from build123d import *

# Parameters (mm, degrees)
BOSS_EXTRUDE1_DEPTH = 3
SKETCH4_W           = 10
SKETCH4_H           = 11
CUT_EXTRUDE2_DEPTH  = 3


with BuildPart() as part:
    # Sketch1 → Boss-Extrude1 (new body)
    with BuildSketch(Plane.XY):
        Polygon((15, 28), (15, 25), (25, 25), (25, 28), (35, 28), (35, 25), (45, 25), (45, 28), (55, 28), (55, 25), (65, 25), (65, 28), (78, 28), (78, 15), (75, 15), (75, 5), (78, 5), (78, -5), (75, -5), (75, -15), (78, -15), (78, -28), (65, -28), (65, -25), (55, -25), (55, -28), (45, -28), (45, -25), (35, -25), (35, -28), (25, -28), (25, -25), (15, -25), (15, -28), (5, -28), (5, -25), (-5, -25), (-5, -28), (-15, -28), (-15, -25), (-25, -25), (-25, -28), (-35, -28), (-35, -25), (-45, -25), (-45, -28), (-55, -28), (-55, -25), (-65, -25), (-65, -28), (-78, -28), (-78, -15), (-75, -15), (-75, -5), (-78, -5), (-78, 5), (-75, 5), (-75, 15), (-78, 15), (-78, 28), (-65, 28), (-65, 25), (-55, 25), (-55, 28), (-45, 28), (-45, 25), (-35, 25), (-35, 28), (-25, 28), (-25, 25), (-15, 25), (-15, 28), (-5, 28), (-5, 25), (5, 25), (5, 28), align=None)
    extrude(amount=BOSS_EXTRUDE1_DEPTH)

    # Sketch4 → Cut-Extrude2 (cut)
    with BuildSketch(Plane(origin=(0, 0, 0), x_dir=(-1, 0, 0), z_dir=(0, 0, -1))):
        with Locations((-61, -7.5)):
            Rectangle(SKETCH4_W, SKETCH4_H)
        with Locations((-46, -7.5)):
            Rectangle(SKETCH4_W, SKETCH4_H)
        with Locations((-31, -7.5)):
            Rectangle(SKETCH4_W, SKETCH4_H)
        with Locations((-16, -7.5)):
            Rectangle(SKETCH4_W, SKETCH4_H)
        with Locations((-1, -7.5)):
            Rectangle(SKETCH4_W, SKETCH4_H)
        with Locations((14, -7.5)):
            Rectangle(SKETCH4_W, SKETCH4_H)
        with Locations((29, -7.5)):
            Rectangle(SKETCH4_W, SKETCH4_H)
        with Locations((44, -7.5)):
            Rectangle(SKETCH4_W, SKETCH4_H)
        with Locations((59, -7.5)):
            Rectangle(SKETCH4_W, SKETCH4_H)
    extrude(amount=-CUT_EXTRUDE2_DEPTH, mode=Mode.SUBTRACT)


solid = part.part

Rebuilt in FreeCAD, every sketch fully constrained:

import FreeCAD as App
import Part
import Sketcher
from FreeCAD import Vector
Q = App.Units.Quantity

doc = App.newDocument("Part")
params = doc.addObject("Spreadsheet::Sheet", "Params")
for row, (alias, value) in enumerate([
    ("sketch1_width", "10 mm"),
    ("sketch1_width2", "13 mm"),
    ("sketch1_width3", "3 mm"),
    ("pad1_length", "3 mm"),
    ("sketch2_width", "10 mm"),
    ("sketch2_height", "11 mm"),
    ("pocket1_length", "3 mm"),
], start=1):
    params.set(f"A{row}", alias)
    params.set(f"B{row}", "=" + value)
    params.setAlias(f"B{row}", alias)

body = doc.addObject("PartDesign::Body", "Body")

# Sketch on XY plane
sketch1 = body.newObject("Sketcher::SketchObject", "Sketch")
sketch1.AttachmentSupport = (doc.getObject("XY_Plane"), [""])
sketch1.MapMode = "FlatFace"
sketch1.addGeometry(Part.LineSegment(Vector(15, 25, 0), Vector(15, 28, 0)), False)
sketch1.addGeometry(Part.LineSegment(Vector(15, 28, 0), Vector(5, 28, 0)), False)
sketch1.addGeometry(Part.LineSegment(Vector(5, 28, 0), Vector(5, 25, 0)), False)
sketch1.addGeometry(Part.LineSegment(Vector(5, 25, 0), Vector(-5, 25, 0)), False)
sketch1.addGeometry(Part.LineSegment(Vector(-5, 25, 0), Vector(-5, 28, 0)), False)
sketch1.addGeometry(Part.LineSegment(Vector(-5, 28, 0), Vector(-15, 28, 0)), False)
sketch1.addGeometry(Part.LineSegment(Vector(-15, 28, 0), Vector(-15, 25, 0)), False)
sketch1.addGeometry(Part.LineSegment(Vector(-15, 25, 0), Vector(-25, 25, 0)), False)
sketch1.addGeometry(Part.LineSegment(Vector(-25, 25, 0), Vector(-25, 28, 0)), False)
sketch1.addGeometry(Part.LineSegment(Vector(-25, 28, 0), Vector(-35, 28, 0)), False)
sketch1.addGeometry(Part.LineSegment(Vector(-35, 28, 0), Vector(-35, 25, 0)), False)
sketch1.addGeometry(Part.LineSegment(Vector(-35, 25, 0), Vector(-45, 25, 0)), False)
sketch1.addGeometry(Part.LineSegment(Vector(-45, 25, 0), Vector(-45, 28, 0)), False)
sketch1.addGeometry(Part.LineSegment(Vector(-45, 28, 0), Vector(-55, 28, 0)), False)
sketch1.addGeometry(Part.LineSegment(Vector(-55, 28, 0), Vector(-55, 25, 0)), False)
sketch1.addGeometry(Part.LineSegment(Vector(-55, 25, 0), Vector(-65, 25, 0)), False)
sketch1.addGeometry(Part.LineSegment(Vector(-65, 25, 0), Vector(-65, 28, 0)), False)
sketch1.addGeometry(Part.LineSegment(Vector(-65, 28, 0), Vector(-78, 28, 0)), False)
sketch1.addGeometry(Part.LineSegment(Vector(-78, 28, 0), Vector(-78, 15, 0)), False)
sketch1.addGeometry(Part.LineSegment(Vector(-78, 15, 0), Vector(-75, 15, 0)), False)
sketch1.addGeometry(Part.LineSegment(Vector(-75, 15, 0), Vector(-75, 5, 0)), False)
sketch1.addGeometry(Part.LineSegment(Vector(-75, 5, 0), Vector(-78, 5, 0)), False)
sketch1.addGeometry(Part.LineSegment(Vector(-78, 5, 0), Vector(-78, -5, 0)), False)
sketch1.addGeometry(Part.LineSegment(Vector(-78, -5, 0), Vector(-75, -5, 0)), False)
sketch1.addGeometry(Part.LineSegment(Vector(-75, -5, 0), Vector(-75, -15, 0)), False)
sketch1.addGeometry(Part.LineSegment(Vector(-75, -15, 0), Vector(-78, -15, 0)), False)
sketch1.addGeometry(Part.LineSegment(Vector(-78, -15, 0), Vector(-78, -28, 0)), False)
sketch1.addGeometry(Part.LineSegment(Vector(-78, -28, 0), Vector(-65, -28, 0)), False)
sketch1.addGeometry(Part.LineSegment(Vector(-65, -28, 0), Vector(-65, -25, 0)), False)
sketch1.addGeometry(Part.LineSegment(Vector(-65, -25, 0), Vector(-55, -25, 0)), False)
sketch1.addGeometry(Part.LineSegment(Vector(-55, -25, 0), Vector(-55, -28, 0)), False)
sketch1.addGeometry(Part.LineSegment(Vector(-55, -28, 0), Vector(-45, -28, 0)), False)
sketch1.addGeometry(Part.LineSegment(Vector(-45, -28, 0), Vector(-45, -25, 0)), False)
sketch1.addGeometry(Part.LineSegment(Vector(-45, -25, 0), Vector(-35, -25, 0)), False)
sketch1.addGeometry(Part.LineSegment(Vector(-35, -25, 0), Vector(-35, -28, 0)), False)
sketch1.addGeometry(Part.LineSegment(Vector(-35, -28, 0), Vector(-25, -28, 0)), False)
sketch1.addGeometry(Part.LineSegment(Vector(-25, -28, 0), Vector(-25, -25, 0)), False)
sketch1.addGeometry(Part.LineSegment(Vector(-25, -25, 0), Vector(-15, -25, 0)), False)
sketch1.addGeometry(Part.LineSegment(Vector(-15, -25, 0), Vector(-15, -28, 0)), False)
sketch1.addGeometry(Part.LineSegment(Vector(-15, -28, 0), Vector(-5, -28, 0)), False)
sketch1.addGeometry(Part.LineSegment(Vector(-5, -28, 0), Vector(-5, -25, 0)), False)
sketch1.addGeometry(Part.LineSegment(Vector(-5, -25, 0), Vector(5, -25, 0)), False)
sketch1.addGeometry(Part.LineSegment(Vector(5, -25, 0), Vector(5, -28, 0)), False)
sketch1.addGeometry(Part.LineSegment(Vector(5, -28, 0), Vector(15, -28, 0)), False)
sketch1.addGeometry(Part.LineSegment(Vector(15, -28, 0), Vector(15, -25, 0)), False)
sketch1.addGeometry(Part.LineSegment(Vector(15, -25, 0), Vector(25, -25, 0)), False)
sketch1.addGeometry(Part.LineSegment(Vector(25, -25, 0), Vector(25, -28, 0)), False)
sketch1.addGeometry(Part.LineSegment(Vector(25, -28, 0), Vector(35, -28, 0)), False)
sketch1.addGeometry(Part.LineSegment(Vector(35, -28, 0), Vector(35, -25, 0)), False)
sketch1.addGeometry(Part.LineSegment(Vector(35, -25, 0), Vector(45, -25, 0)), False)
sketch1.addGeometry(Part.LineSegment(Vector(45, -25, 0), Vector(45, -28, 0)), False)
sketch1.addGeometry(Part.LineSegment(Vector(45, -28, 0), Vector(55, -28, 0)), False)
sketch1.addGeometry(Part.LineSegment(Vector(55, -28, 0), Vector(55, -25, 0)), False)
sketch1.addGeometry(Part.LineSegment(Vector(55, -25, 0), Vector(65, -25, 0)), False)
sketch1.addGeometry(Part.LineSegment(Vector(65, -25, 0), Vector(65, -28, 0)), False)
sketch1.addGeometry(Part.LineSegment(Vector(65, -28, 0), Vector(78, -28, 0)), False)
sketch1.addGeometry(Part.LineSegment(Vector(78, -28, 0), Vector(78, -15, 0)), False)
sketch1.addGeometry(Part.LineSegment(Vector(78, -15, 0), Vector(75, -15, 0)), False)
sketch1.addGeometry(Part.LineSegment(Vector(75, -15, 0), Vector(75, -5, 0)), False)
sketch1.addGeometry(Part.LineSegment(Vector(75, -5, 0), Vector(78, -5, 0)), False)
sketch1.addGeometry(Part.LineSegment(Vector(78, -5, 0), Vector(78, 5, 0)), False)
sketch1.addGeometry(Part.LineSegment(Vector(78, 5, 0), Vector(75, 5, 0)), False)
sketch1.addGeometry(Part.LineSegment(Vector(75, 5, 0), Vector(75, 15, 0)), False)
sketch1.addGeometry(Part.LineSegment(Vector(75, 15, 0), Vector(78, 15, 0)), False)
sketch1.addGeometry(Part.LineSegment(Vector(78, 15, 0), Vector(78, 28, 0)), False)
sketch1.addGeometry(Part.LineSegment(Vector(78, 28, 0), Vector(65, 28, 0)), False)
sketch1.addGeometry(Part.LineSegment(Vector(65, 28, 0), Vector(65, 25, 0)), False)
sketch1.addGeometry(Part.LineSegment(Vector(65, 25, 0), Vector(55, 25, 0)), False)
sketch1.addGeometry(Part.LineSegment(Vector(55, 25, 0), Vector(55, 28, 0)), False)
sketch1.addGeometry(Part.LineSegment(Vector(55, 28, 0), Vector(45, 28, 0)), False)
sketch1.addGeometry(Part.LineSegment(Vector(45, 28, 0), Vector(45, 25, 0)), False)
sketch1.addGeometry(Part.LineSegment(Vector(45, 25, 0), Vector(35, 25, 0)), False)
sketch1.addGeometry(Part.LineSegment(Vector(35, 25, 0), Vector(35, 28, 0)), False)
sketch1.addGeometry(Part.LineSegment(Vector(35, 28, 0), Vector(25, 28, 0)), False)
sketch1.addGeometry(Part.LineSegment(Vector(25, 28, 0), Vector(25, 25, 0)), False)
sketch1.addGeometry(Part.LineSegment(Vector(25, 25, 0), Vector(15, 25, 0)), False)
sketch1.addConstraint(Sketcher.Constraint("Coincident", 0, 2, 1, 1))
sketch1.addConstraint(Sketcher.Constraint("Coincident", 1, 2, 2, 1))
sketch1.addConstraint(Sketcher.Constraint("Coincident", 2, 2, 3, 1))
sketch1.addConstraint(Sketcher.Constraint("Coincident", 3, 2, 4, 1))
sketch1.addConstraint(Sketcher.Constraint("Coincident", 4, 2, 5, 1))
sketch1.addConstraint(Sketcher.Constraint("Coincident", 5, 2, 6, 1))
sketch1.addConstraint(Sketcher.Constraint("Coincident", 6, 2, 7, 1))
sketch1.addConstraint(Sketcher.Constraint("Coincident", 7, 2, 8, 1))
sketch1.addConstraint(Sketcher.Constraint("Coincident", 8, 2, 9, 1))
sketch1.addConstraint(Sketcher.Constraint("Coincident", 9, 2, 10, 1))
sketch1.addConstraint(Sketcher.Constraint("Coincident", 10, 2, 11, 1))
sketch1.addConstraint(Sketcher.Constraint("Coincident", 11, 2, 12, 1))
sketch1.addConstraint(Sketcher.Constraint("Coincident", 12, 2, 13, 1))
sketch1.addConstraint(Sketcher.Constraint("Coincident", 13, 2, 14, 1))
sketch1.addConstraint(Sketcher.Constraint("Coincident", 14, 2, 15, 1))
sketch1.addConstraint(Sketcher.Constraint("Coincident", 15, 2, 16, 1))
sketch1.addConstraint(Sketcher.Constraint("Coincident", 16, 2, 17, 1))
sketch1.addConstraint(Sketcher.Constraint("Coincident", 17, 2, 18, 1))
sketch1.addConstraint(Sketcher.Constraint("Coincident", 18, 2, 19, 1))
sketch1.addConstraint(Sketcher.Constraint("Coincident", 19, 2, 20, 1))
sketch1.addConstraint(Sketcher.Constraint("Coincident", 20, 2, 21, 1))
sketch1.addConstraint(Sketcher.Constraint("Coincident", 21, 2, 22, 1))
sketch1.addConstraint(Sketcher.Constraint("Coincident", 22, 2, 23, 1))
sketch1.addConstraint(Sketcher.Constraint("Coincident", 23, 2, 24, 1))
sketch1.addConstraint(Sketcher.Constraint("Coincident", 24, 2, 25, 1))
sketch1.addConstraint(Sketcher.Constraint("Coincident", 25, 2, 26, 1))
sketch1.addConstraint(Sketcher.Constraint("Coincident", 26, 2, 27, 1))
sketch1.addConstraint(Sketcher.Constraint("Coincident", 27, 2, 28, 1))
sketch1.addConstraint(Sketcher.Constraint("Coincident", 28, 2, 29, 1))
sketch1.addConstraint(Sketcher.Constraint("Coincident", 29, 2, 30, 1))
sketch1.addConstraint(Sketcher.Constraint("Coincident", 30, 2, 31, 1))
sketch1.addConstraint(Sketcher.Constraint("Coincident", 31, 2, 32, 1))
sketch1.addConstraint(Sketcher.Constraint("Coincident", 32, 2, 33, 1))
sketch1.addConstraint(Sketcher.Constraint("Coincident", 33, 2, 34, 1))
sketch1.addConstraint(Sketcher.Constraint("Coincident", 34, 2, 35, 1))
sketch1.addConstraint(Sketcher.Constraint("Coincident", 35, 2, 36, 1))
sketch1.addConstraint(Sketcher.Constraint("Coincident", 36, 2, 37, 1))
sketch1.addConstraint(Sketcher.Constraint("Coincident", 37, 2, 38, 1))
sketch1.addConstraint(Sketcher.Constraint("Coincident", 38, 2, 39, 1))
sketch1.addConstraint(Sketcher.Constraint("Coincident", 39, 2, 40, 1))
sketch1.addConstraint(Sketcher.Constraint("Coincident", 40, 2, 41, 1))
sketch1.addConstraint(Sketcher.Constraint("Coincident", 41, 2, 42, 1))
sketch1.addConstraint(Sketcher.Constraint("Coincident", 42, 2, 43, 1))
sketch1.addConstraint(Sketcher.Constraint("Coincident", 43, 2, 44, 1))
sketch1.addConstraint(Sketcher.Constraint("Coincident", 44, 2, 45, 1))
sketch1.addConstraint(Sketcher.Constraint("Coincident", 45, 2, 46, 1))
sketch1.addConstraint(Sketcher.Constraint("Coincident", 46, 2, 47, 1))
sketch1.addConstraint(Sketcher.Constraint("Coincident", 47, 2, 48, 1))
sketch1.addConstraint(Sketcher.Constraint("Coincident", 48, 2, 49, 1))
sketch1.addConstraint(Sketcher.Constraint("Coincident", 49, 2, 50, 1))
sketch1.addConstraint(Sketcher.Constraint("Coincident", 50, 2, 51, 1))
sketch1.addConstraint(Sketcher.Constraint("Coincident", 51, 2, 52, 1))
sketch1.addConstraint(Sketcher.Constraint("Coincident", 52, 2, 53, 1))
sketch1.addConstraint(Sketcher.Constraint("Coincident", 53, 2, 54, 1))
sketch1.addConstraint(Sketcher.Constraint("Coincident", 54, 2, 55, 1))
sketch1.addConstraint(Sketcher.Constraint("Coincident", 55, 2, 56, 1))
sketch1.addConstraint(Sketcher.Constraint("Coincident", 56, 2, 57, 1))
sketch1.addConstraint(Sketcher.Constraint("Coincident", 57, 2, 58, 1))
sketch1.addConstraint(Sketcher.Constraint("Coincident", 58, 2, 59, 1))
sketch1.addConstraint(Sketcher.Constraint("Coincident", 59, 2, 60, 1))
sketch1.addConstraint(Sketcher.Constraint("Coincident", 60, 2, 61, 1))
sketch1.addConstraint(Sketcher.Constraint("Coincident", 61, 2, 62, 1))
sketch1.addConstraint(Sketcher.Constraint("Coincident", 62, 2, 63, 1))
sketch1.addConstraint(Sketcher.Constraint("Coincident", 63, 2, 64, 1))
sketch1.addConstraint(Sketcher.Constraint("Coincident", 64, 2, 65, 1))
sketch1.addConstraint(Sketcher.Constraint("Coincident", 65, 2, 66, 1))
sketch1.addConstraint(Sketcher.Constraint("Coincident", 66, 2, 67, 1))
sketch1.addConstraint(Sketcher.Constraint("Coincident", 67, 2, 68, 1))
sketch1.addConstraint(Sketcher.Constraint("Coincident", 68, 2, 69, 1))
sketch1.addConstraint(Sketcher.Constraint("Coincident", 69, 2, 70, 1))
sketch1.addConstraint(Sketcher.Constraint("Coincident", 70, 2, 71, 1))
sketch1.addConstraint(Sketcher.Constraint("Coincident", 71, 2, 72, 1))
sketch1.addConstraint(Sketcher.Constraint("Coincident", 72, 2, 73, 1))
sketch1.addConstraint(Sketcher.Constraint("Coincident", 73, 2, 74, 1))
sketch1.addConstraint(Sketcher.Constraint("Coincident", 74, 2, 75, 1))
sketch1.addConstraint(Sketcher.Constraint("Coincident", 75, 2, 0, 1))
sketch1.addConstraint(Sketcher.Constraint("Vertical", 0))
sketch1.addConstraint(Sketcher.Constraint("Horizontal", 1))
sketch1.addConstraint(Sketcher.Constraint("Vertical", 2))
sketch1.addConstraint(Sketcher.Constraint("Horizontal", 3))
sketch1.addConstraint(Sketcher.Constraint("Vertical", 4))
sketch1.addConstraint(Sketcher.Constraint("Horizontal", 5))
sketch1.addConstraint(Sketcher.Constraint("Vertical", 6))
sketch1.addConstraint(Sketcher.Constraint("Horizontal", 7))
sketch1.addConstraint(Sketcher.Constraint("Vertical", 8))
sketch1.addConstraint(Sketcher.Constraint("Horizontal", 9))
sketch1.addConstraint(Sketcher.Constraint("Vertical", 10))
sketch1.addConstraint(Sketcher.Constraint("Horizontal", 11))
sketch1.addConstraint(Sketcher.Constraint("Vertical", 12))
sketch1.addConstraint(Sketcher.Constraint("Horizontal", 13))
sketch1.addConstraint(Sketcher.Constraint("Vertical", 14))
sketch1.addConstraint(Sketcher.Constraint("Horizontal", 15))
sketch1.addConstraint(Sketcher.Constraint("Vertical", 16))
sketch1.addConstraint(Sketcher.Constraint("Horizontal", 17))
sketch1.addConstraint(Sketcher.Constraint("Vertical", 18))
sketch1.addConstraint(Sketcher.Constraint("Horizontal", 19))
sketch1.addConstraint(Sketcher.Constraint("Vertical", 20))
sketch1.addConstraint(Sketcher.Constraint("Horizontal", 21))
sketch1.addConstraint(Sketcher.Constraint("Vertical", 22))
sketch1.addConstraint(Sketcher.Constraint("Horizontal", 23))
sketch1.addConstraint(Sketcher.Constraint("Vertical", 24))
sketch1.addConstraint(Sketcher.Constraint("Horizontal", 25))
sketch1.addConstraint(Sketcher.Constraint("Vertical", 26))
sketch1.addConstraint(Sketcher.Constraint("Horizontal", 27))
sketch1.addConstraint(Sketcher.Constraint("Vertical", 28))
sketch1.addConstraint(Sketcher.Constraint("Horizontal", 29))
sketch1.addConstraint(Sketcher.Constraint("Vertical", 30))
sketch1.addConstraint(Sketcher.Constraint("Horizontal", 31))
sketch1.addConstraint(Sketcher.Constraint("Vertical", 32))
sketch1.addConstraint(Sketcher.Constraint("Horizontal", 33))
sketch1.addConstraint(Sketcher.Constraint("Vertical", 34))
sketch1.addConstraint(Sketcher.Constraint("Horizontal", 35))
sketch1.addConstraint(Sketcher.Constraint("Vertical", 36))
sketch1.addConstraint(Sketcher.Constraint("Horizontal", 37))
sketch1.addConstraint(Sketcher.Constraint("Vertical", 38))
sketch1.addConstraint(Sketcher.Constraint("Horizontal", 39))
sketch1.addConstraint(Sketcher.Constraint("Vertical", 40))
sketch1.addConstraint(Sketcher.Constraint("Horizontal", 41))
sketch1.addConstraint(Sketcher.Constraint("Vertical", 42))
sketch1.addConstraint(Sketcher.Constraint("Horizontal", 43))
sketch1.addConstraint(Sketcher.Constraint("Vertical", 44))
sketch1.addConstraint(Sketcher.Constraint("Horizontal", 45))
sketch1.addConstraint(Sketcher.Constraint("Vertical", 46))
sketch1.addConstraint(Sketcher.Constraint("Horizontal", 47))
sketch1.addConstraint(Sketcher.Constraint("Vertical", 48))
sketch1.addConstraint(Sketcher.Constraint("Horizontal", 49))
sketch1.addConstraint(Sketcher.Constraint("Vertical", 50))
sketch1.addConstraint(Sketcher.Constraint("Horizontal", 51))
sketch1.addConstraint(Sketcher.Constraint("Vertical", 52))
sketch1.addConstraint(Sketcher.Constraint("Horizontal", 53))
sketch1.addConstraint(Sketcher.Constraint("Vertical", 54))
sketch1.addConstraint(Sketcher.Constraint("Horizontal", 55))
sketch1.addConstraint(Sketcher.Constraint("Vertical", 56))
sketch1.addConstraint(Sketcher.Constraint("Horizontal", 57))
sketch1.addConstraint(Sketcher.Constraint("Vertical", 58))
sketch1.addConstraint(Sketcher.Constraint("Horizontal", 59))
sketch1.addConstraint(Sketcher.Constraint("Vertical", 60))
sketch1.addConstraint(Sketcher.Constraint("Horizontal", 61))
sketch1.addConstraint(Sketcher.Constraint("Vertical", 62))
sketch1.addConstraint(Sketcher.Constraint("Horizontal", 63))
sketch1.addConstraint(Sketcher.Constraint("Vertical", 64))
sketch1.addConstraint(Sketcher.Constraint("Horizontal", 65))
sketch1.addConstraint(Sketcher.Constraint("Vertical", 66))
sketch1.addConstraint(Sketcher.Constraint("Horizontal", 67))
sketch1.addConstraint(Sketcher.Constraint("Vertical", 68))
sketch1.addConstraint(Sketcher.Constraint("Horizontal", 69))
sketch1.addConstraint(Sketcher.Constraint("Vertical", 70))
sketch1.addConstraint(Sketcher.Constraint("Horizontal", 71))
sketch1.addConstraint(Sketcher.Constraint("Vertical", 72))
sketch1.addConstraint(Sketcher.Constraint("Horizontal", 73))
sketch1.addConstraint(Sketcher.Constraint("Vertical", 74))
sketch1.addConstraint(Sketcher.Constraint("Horizontal", 75))
sketch1.addConstraint(Sketcher.Constraint("Symmetric", 0, 2, 38, 2, -1, 1))
sketch1.addConstraint(Sketcher.Constraint("Symmetric", 2, 2, 40, 2, -1, 1))
sketch1.addConstraint(Sketcher.Constraint("Symmetric", 4, 2, 42, 2, -1, 1))
sketch1.addConstraint(Sketcher.Constraint("Symmetric", 6, 2, 44, 2, -1, 1))
sketch1.addConstraint(Sketcher.Constraint("Symmetric", 8, 2, 46, 2, -1, 1))
sketch1.addConstraint(Sketcher.Constraint("Symmetric", 10, 2, 48, 2, -1, 1))
sketch1.addConstraint(Sketcher.Constraint("Symmetric", 12, 2, 50, 2, -1, 1))
sketch1.addConstraint(Sketcher.Constraint("Symmetric", 14, 2, 52, 2, -1, 1))
sketch1.addConstraint(Sketcher.Constraint("Symmetric", 16, 2, 54, 2, -1, 1))
sketch1.addConstraint(Sketcher.Constraint("Symmetric", 18, 2, 56, 2, -1, 1))
sketch1.addConstraint(Sketcher.Constraint("Symmetric", 20, 2, 58, 2, -1, 1))
sketch1.addConstraint(Sketcher.Constraint("Symmetric", 22, 2, 60, 2, -1, 1))
sketch1.addConstraint(Sketcher.Constraint("Symmetric", 24, 2, 62, 2, -1, 1))
sketch1.addConstraint(Sketcher.Constraint("Symmetric", 26, 2, 64, 2, -1, 1))
sketch1.addConstraint(Sketcher.Constraint("Symmetric", 28, 2, 66, 2, -1, 1))
sketch1.addConstraint(Sketcher.Constraint("Symmetric", 30, 2, 68, 2, -1, 1))
sketch1.addConstraint(Sketcher.Constraint("Symmetric", 32, 2, 70, 2, -1, 1))
sketch1.addConstraint(Sketcher.Constraint("Symmetric", 34, 2, 72, 2, -1, 1))
sketch1.addConstraint(Sketcher.Constraint("Symmetric", 36, 2, 74, 2, -1, 1))
sketch1.addConstraint(Sketcher.Constraint("Symmetric", 1, 2, 4, 2, -2))
sketch1.addConstraint(Sketcher.Constraint("Symmetric", 37, 2, 44, 2, -2))
sketch1.addConstraint(Sketcher.Constraint("Symmetric", 35, 2, 46, 2, -2))
sketch1.addConstraint(Sketcher.Constraint("Symmetric", 33, 2, 48, 2, -2))
sketch1.addConstraint(Sketcher.Constraint("Symmetric", 31, 2, 50, 2, -2))
sketch1.addConstraint(Sketcher.Constraint("Symmetric", 29, 2, 52, 2, -2))
sketch1.addConstraint(Sketcher.Constraint("Symmetric", 27, 2, 54, 2, -2))
sketch1.addConstraint(Sketcher.Constraint("Symmetric", 25, 2, 56, 2, -2))
sketch1.addConstraint(Sketcher.Constraint("Symmetric", 23, 2, 58, 2, -2))
sketch1.addConstraint(Sketcher.Constraint("Horizontal", 3, 2, 6, 2))
sketch1.addConstraint(Sketcher.Constraint("Horizontal", 5, 2, 8, 2))
sketch1.addConstraint(Sketcher.Constraint("Horizontal", 7, 2, 10, 2))
sketch1.addConstraint(Sketcher.Constraint("Horizontal", 9, 2, 12, 2))
sketch1.addConstraint(Sketcher.Constraint("Horizontal", 11, 2, 14, 2))
sketch1.addConstraint(Sketcher.Constraint("Horizontal", 13, 2, 16, 2))
sketch1.addConstraint(Sketcher.Constraint("Vertical", 18, 2, 21, 2))
sketch1.addConstraint(Sketcher.Constraint("Equal", 1, 3))
sketch1.addConstraint(Sketcher.Constraint("Equal", 5, 7))
sketch1.addConstraint(Sketcher.Constraint("Equal", 7, 9))
sketch1.addConstraint(Sketcher.Constraint("Equal", 9, 11))
sketch1.addConstraint(Sketcher.Constraint("Equal", 11, 13))
sketch1.addConstraint(Sketcher.Constraint("Equal", 13, 15))
sketch1.addConstraint(Sketcher.Constraint("Equal", 63, 0))
sketch1.addConstraint(Sketcher.Constraint("Equal", 65, 18))
sketch1.addConstraint(Sketcher.Constraint("Equal", 75, 20))
sketch1.addConstraint(Sketcher.Constraint("Equal", 20, 22))
sketch1.addConstraint(Sketcher.Constraint("DistanceX", 1, 2, 1, 1, Q("10 mm")))
sketch1.addConstraint(Sketcher.Constraint("DistanceX", 17, 2, 17, 1, Q("13 mm")))
sketch1.addConstraint(Sketcher.Constraint("DistanceX", 19, 1, 19, 2, Q("3 mm")))
sketch1.setExpression("Constraints[197]", "Params.sketch1_width")
sketch1.setExpression("Constraints[198]", "Params.sketch1_width2")
sketch1.setExpression("Constraints[199]", "Params.sketch1_width3")
pad1 = body.newObject("PartDesign::Pad", "Pad")
pad1.Profile = sketch1
pad1.setExpression("Length", "Params.pad1_length")

# Sketch on XY plane
sketch2 = body.newObject("Sketcher::SketchObject", "Sketch001")
sketch2.AttachmentSupport = (doc.getObject("XY_Plane"), [""])
sketch2.MapMode = "FlatFace"
sketch2.addGeometry(Part.LineSegment(Vector(66, -2, 0), Vector(66, -13, 0)), False)
sketch2.addGeometry(Part.LineSegment(Vector(66, -13, 0), Vector(56, -13, 0)), False)
sketch2.addGeometry(Part.LineSegment(Vector(56, -13, 0), Vector(56, -2, 0)), False)
sketch2.addGeometry(Part.LineSegment(Vector(56, -2, 0), Vector(66, -2, 0)), False)
sketch2.addGeometry(Part.LineSegment(Vector(51, -2, 0), Vector(51, -13, 0)), False)
sketch2.addGeometry(Part.LineSegment(Vector(51, -13, 0), Vector(41, -13, 0)), False)
sketch2.addGeometry(Part.LineSegment(Vector(41, -13, 0), Vector(41, -2, 0)), False)
sketch2.addGeometry(Part.LineSegment(Vector(41, -2, 0), Vector(51, -2, 0)), False)
sketch2.addGeometry(Part.LineSegment(Vector(36, -2, 0), Vector(36, -13, 0)), False)
sketch2.addGeometry(Part.LineSegment(Vector(36, -13, 0), Vector(26, -13, 0)), False)
sketch2.addGeometry(Part.LineSegment(Vector(26, -13, 0), Vector(26, -2, 0)), False)
sketch2.addGeometry(Part.LineSegment(Vector(26, -2, 0), Vector(36, -2, 0)), False)
sketch2.addGeometry(Part.LineSegment(Vector(21, -2, 0), Vector(21, -13, 0)), False)
sketch2.addGeometry(Part.LineSegment(Vector(21, -13, 0), Vector(11, -13, 0)), False)
sketch2.addGeometry(Part.LineSegment(Vector(11, -13, 0), Vector(11, -2, 0)), False)
sketch2.addGeometry(Part.LineSegment(Vector(11, -2, 0), Vector(21, -2, 0)), False)
sketch2.addGeometry(Part.LineSegment(Vector(6, -2, 0), Vector(6, -13, 0)), False)
sketch2.addGeometry(Part.LineSegment(Vector(6, -13, 0), Vector(-4, -13, 0)), False)
sketch2.addGeometry(Part.LineSegment(Vector(-4, -13, 0), Vector(-4, -2, 0)), False)
sketch2.addGeometry(Part.LineSegment(Vector(-4, -2, 0), Vector(6, -2, 0)), False)
sketch2.addGeometry(Part.LineSegment(Vector(-9, -2, 0), Vector(-9, -13, 0)), False)
sketch2.addGeometry(Part.LineSegment(Vector(-9, -13, 0), Vector(-19, -13, 0)), False)
sketch2.addGeometry(Part.LineSegment(Vector(-19, -13, 0), Vector(-19, -2, 0)), False)
sketch2.addGeometry(Part.LineSegment(Vector(-19, -2, 0), Vector(-9, -2, 0)), False)
sketch2.addGeometry(Part.LineSegment(Vector(-24, -2, 0), Vector(-24, -13, 0)), False)
sketch2.addGeometry(Part.LineSegment(Vector(-24, -13, 0), Vector(-34, -13, 0)), False)
sketch2.addGeometry(Part.LineSegment(Vector(-34, -13, 0), Vector(-34, -2, 0)), False)
sketch2.addGeometry(Part.LineSegment(Vector(-34, -2, 0), Vector(-24, -2, 0)), False)
sketch2.addGeometry(Part.LineSegment(Vector(-39, -2, 0), Vector(-39, -13, 0)), False)
sketch2.addGeometry(Part.LineSegment(Vector(-39, -13, 0), Vector(-49, -13, 0)), False)
sketch2.addGeometry(Part.LineSegment(Vector(-49, -13, 0), Vector(-49, -2, 0)), False)
sketch2.addGeometry(Part.LineSegment(Vector(-49, -2, 0), Vector(-39, -2, 0)), False)
sketch2.addGeometry(Part.LineSegment(Vector(-54, -2, 0), Vector(-54, -13, 0)), False)
sketch2.addGeometry(Part.LineSegment(Vector(-54, -13, 0), Vector(-64, -13, 0)), False)
sketch2.addGeometry(Part.LineSegment(Vector(-64, -13, 0), Vector(-64, -2, 0)), False)
sketch2.addGeometry(Part.LineSegment(Vector(-64, -2, 0), Vector(-54, -2, 0)), False)
sketch2.addConstraint(Sketcher.Constraint("Coincident", 0, 2, 1, 1))
sketch2.addConstraint(Sketcher.Constraint("Coincident", 1, 2, 2, 1))
sketch2.addConstraint(Sketcher.Constraint("Coincident", 2, 2, 3, 1))
sketch2.addConstraint(Sketcher.Constraint("Coincident", 3, 2, 0, 1))
sketch2.addConstraint(Sketcher.Constraint("Coincident", 4, 2, 5, 1))
sketch2.addConstraint(Sketcher.Constraint("Coincident", 5, 2, 6, 1))
sketch2.addConstraint(Sketcher.Constraint("Coincident", 6, 2, 7, 1))
sketch2.addConstraint(Sketcher.Constraint("Coincident", 7, 2, 4, 1))
sketch2.addConstraint(Sketcher.Constraint("Coincident", 8, 2, 9, 1))
sketch2.addConstraint(Sketcher.Constraint("Coincident", 9, 2, 10, 1))
sketch2.addConstraint(Sketcher.Constraint("Coincident", 10, 2, 11, 1))
sketch2.addConstraint(Sketcher.Constraint("Coincident", 11, 2, 8, 1))
sketch2.addConstraint(Sketcher.Constraint("Coincident", 12, 2, 13, 1))
sketch2.addConstraint(Sketcher.Constraint("Coincident", 13, 2, 14, 1))
sketch2.addConstraint(Sketcher.Constraint("Coincident", 14, 2, 15, 1))
sketch2.addConstraint(Sketcher.Constraint("Coincident", 15, 2, 12, 1))
sketch2.addConstraint(Sketcher.Constraint("Coincident", 16, 2, 17, 1))
sketch2.addConstraint(Sketcher.Constraint("Coincident", 17, 2, 18, 1))
sketch2.addConstraint(Sketcher.Constraint("Coincident", 18, 2, 19, 1))
sketch2.addConstraint(Sketcher.Constraint("Coincident", 19, 2, 16, 1))
sketch2.addConstraint(Sketcher.Constraint("Coincident", 20, 2, 21, 1))
sketch2.addConstraint(Sketcher.Constraint("Coincident", 21, 2, 22, 1))
sketch2.addConstraint(Sketcher.Constraint("Coincident", 22, 2, 23, 1))
sketch2.addConstraint(Sketcher.Constraint("Coincident", 23, 2, 20, 1))
sketch2.addConstraint(Sketcher.Constraint("Coincident", 24, 2, 25, 1))
sketch2.addConstraint(Sketcher.Constraint("Coincident", 25, 2, 26, 1))
sketch2.addConstraint(Sketcher.Constraint("Coincident", 26, 2, 27, 1))
sketch2.addConstraint(Sketcher.Constraint("Coincident", 27, 2, 24, 1))
sketch2.addConstraint(Sketcher.Constraint("Coincident", 28, 2, 29, 1))
sketch2.addConstraint(Sketcher.Constraint("Coincident", 29, 2, 30, 1))
sketch2.addConstraint(Sketcher.Constraint("Coincident", 30, 2, 31, 1))
sketch2.addConstraint(Sketcher.Constraint("Coincident", 31, 2, 28, 1))
sketch2.addConstraint(Sketcher.Constraint("Coincident", 32, 2, 33, 1))
sketch2.addConstraint(Sketcher.Constraint("Coincident", 33, 2, 34, 1))
sketch2.addConstraint(Sketcher.Constraint("Coincident", 34, 2, 35, 1))
sketch2.addConstraint(Sketcher.Constraint("Coincident", 35, 2, 32, 1))
sketch2.addConstraint(Sketcher.Constraint("Vertical", 0))
sketch2.addConstraint(Sketcher.Constraint("Horizontal", 1))
sketch2.addConstraint(Sketcher.Constraint("Vertical", 2))
sketch2.addConstraint(Sketcher.Constraint("Horizontal", 3))
sketch2.addConstraint(Sketcher.Constraint("Vertical", 4))
sketch2.addConstraint(Sketcher.Constraint("Horizontal", 5))
sketch2.addConstraint(Sketcher.Constraint("Vertical", 6))
sketch2.addConstraint(Sketcher.Constraint("Horizontal", 7))
sketch2.addConstraint(Sketcher.Constraint("Vertical", 8))
sketch2.addConstraint(Sketcher.Constraint("Horizontal", 9))
sketch2.addConstraint(Sketcher.Constraint("Vertical", 10))
sketch2.addConstraint(Sketcher.Constraint("Horizontal", 11))
sketch2.addConstraint(Sketcher.Constraint("Vertical", 12))
sketch2.addConstraint(Sketcher.Constraint("Horizontal", 13))
sketch2.addConstraint(Sketcher.Constraint("Vertical", 14))
sketch2.addConstraint(Sketcher.Constraint("Horizontal", 15))
sketch2.addConstraint(Sketcher.Constraint("Vertical", 16))
sketch2.addConstraint(Sketcher.Constraint("Horizontal", 17))
sketch2.addConstraint(Sketcher.Constraint("Vertical", 18))
sketch2.addConstraint(Sketcher.Constraint("Horizontal", 19))
sketch2.addConstraint(Sketcher.Constraint("Vertical", 20))
sketch2.addConstraint(Sketcher.Constraint("Horizontal", 21))
sketch2.addConstraint(Sketcher.Constraint("Vertical", 22))
sketch2.addConstraint(Sketcher.Constraint("Horizontal", 23))
sketch2.addConstraint(Sketcher.Constraint("Vertical", 24))
sketch2.addConstraint(Sketcher.Constraint("Horizontal", 25))
sketch2.addConstraint(Sketcher.Constraint("Vertical", 26))
sketch2.addConstraint(Sketcher.Constraint("Horizontal", 27))
sketch2.addConstraint(Sketcher.Constraint("Vertical", 28))
sketch2.addConstraint(Sketcher.Constraint("Horizontal", 29))
sketch2.addConstraint(Sketcher.Constraint("Vertical", 30))
sketch2.addConstraint(Sketcher.Constraint("Horizontal", 31))
sketch2.addConstraint(Sketcher.Constraint("Vertical", 32))
sketch2.addConstraint(Sketcher.Constraint("Horizontal", 33))
sketch2.addConstraint(Sketcher.Constraint("Vertical", 34))
sketch2.addConstraint(Sketcher.Constraint("Horizontal", 35))
sketch2.addConstraint(Sketcher.Constraint("Horizontal", 1, 2, 4, 2))
sketch2.addConstraint(Sketcher.Constraint("Horizontal", 3, 2, 6, 2))
sketch2.addConstraint(Sketcher.Constraint("Horizontal", 5, 2, 8, 2))
sketch2.addConstraint(Sketcher.Constraint("Horizontal", 7, 2, 10, 2))
sketch2.addConstraint(Sketcher.Constraint("Horizontal", 9, 2, 12, 2))
sketch2.addConstraint(Sketcher.Constraint("Horizontal", 11, 2, 14, 2))
sketch2.addConstraint(Sketcher.Constraint("Horizontal", 13, 2, 16, 2))
sketch2.addConstraint(Sketcher.Constraint("Horizontal", 15, 2, 18, 2))
sketch2.addConstraint(Sketcher.Constraint("Horizontal", 17, 2, 20, 2))
sketch2.addConstraint(Sketcher.Constraint("Horizontal", 19, 2, 22, 2))
sketch2.addConstraint(Sketcher.Constraint("Horizontal", 21, 2, 24, 2))
sketch2.addConstraint(Sketcher.Constraint("Horizontal", 23, 2, 26, 2))
sketch2.addConstraint(Sketcher.Constraint("Horizontal", 25, 2, 28, 2))
sketch2.addConstraint(Sketcher.Constraint("Horizontal", 27, 2, 30, 2))
sketch2.addConstraint(Sketcher.Constraint("Horizontal", 29, 2, 32, 2))
sketch2.addConstraint(Sketcher.Constraint("Horizontal", 31, 2, 34, 2))
sketch2.addConstraint(Sketcher.Constraint("Equal", 3, 5))
sketch2.addConstraint(Sketcher.Constraint("Equal", 7, 9))
sketch2.addConstraint(Sketcher.Constraint("Equal", 11, 13))
sketch2.addConstraint(Sketcher.Constraint("Equal", 15, 17))
sketch2.addConstraint(Sketcher.Constraint("Equal", 19, 21))
sketch2.addConstraint(Sketcher.Constraint("Equal", 23, 25))
sketch2.addConstraint(Sketcher.Constraint("Equal", 27, 29))
sketch2.addConstraint(Sketcher.Constraint("Equal", 31, 33))
sketch2.addConstraint(Sketcher.Constraint("DistanceX", 1, 2, 1, 1, Q("10 mm")))
sketch2.addConstraint(Sketcher.Constraint("DistanceY", 0, 2, 0, 1, Q("11 mm")))
sketch2.addConstraint(Sketcher.Constraint("DistanceX", -1, 1, 0, 2, Q("66 mm")))
sketch2.addConstraint(Sketcher.Constraint("DistanceY", 0, 2, -1, 1, Q("13 mm")))
sketch2.addConstraint(Sketcher.Constraint("DistanceX", -1, 1, 4, 2, Q("51 mm")))
sketch2.addConstraint(Sketcher.Constraint("DistanceX", -1, 1, 8, 2, Q("36 mm")))
sketch2.addConstraint(Sketcher.Constraint("DistanceX", -1, 1, 12, 2, Q("21 mm")))
sketch2.addConstraint(Sketcher.Constraint("DistanceX", -1, 1, 16, 2, Q("6 mm")))
sketch2.addConstraint(Sketcher.Constraint("DistanceX", 20, 2, -1, 1, Q("9 mm")))
sketch2.addConstraint(Sketcher.Constraint("DistanceX", 24, 2, -1, 1, Q("24 mm")))
sketch2.addConstraint(Sketcher.Constraint("DistanceX", 28, 2, -1, 1, Q("39 mm")))
sketch2.addConstraint(Sketcher.Constraint("DistanceX", 32, 2, -1, 1, Q("54 mm")))
sketch2.setExpression("Constraints[96]", "Params.sketch2_width")
sketch2.setExpression("Constraints[97]", "Params.sketch2_height")
pocket1 = body.newObject("PartDesign::Pocket", "Pocket")
pocket1.Profile = sketch2
pocket1.setExpression("Length", "Params.pocket1_length")
pocket1.Reversed = True

doc.recompute()
